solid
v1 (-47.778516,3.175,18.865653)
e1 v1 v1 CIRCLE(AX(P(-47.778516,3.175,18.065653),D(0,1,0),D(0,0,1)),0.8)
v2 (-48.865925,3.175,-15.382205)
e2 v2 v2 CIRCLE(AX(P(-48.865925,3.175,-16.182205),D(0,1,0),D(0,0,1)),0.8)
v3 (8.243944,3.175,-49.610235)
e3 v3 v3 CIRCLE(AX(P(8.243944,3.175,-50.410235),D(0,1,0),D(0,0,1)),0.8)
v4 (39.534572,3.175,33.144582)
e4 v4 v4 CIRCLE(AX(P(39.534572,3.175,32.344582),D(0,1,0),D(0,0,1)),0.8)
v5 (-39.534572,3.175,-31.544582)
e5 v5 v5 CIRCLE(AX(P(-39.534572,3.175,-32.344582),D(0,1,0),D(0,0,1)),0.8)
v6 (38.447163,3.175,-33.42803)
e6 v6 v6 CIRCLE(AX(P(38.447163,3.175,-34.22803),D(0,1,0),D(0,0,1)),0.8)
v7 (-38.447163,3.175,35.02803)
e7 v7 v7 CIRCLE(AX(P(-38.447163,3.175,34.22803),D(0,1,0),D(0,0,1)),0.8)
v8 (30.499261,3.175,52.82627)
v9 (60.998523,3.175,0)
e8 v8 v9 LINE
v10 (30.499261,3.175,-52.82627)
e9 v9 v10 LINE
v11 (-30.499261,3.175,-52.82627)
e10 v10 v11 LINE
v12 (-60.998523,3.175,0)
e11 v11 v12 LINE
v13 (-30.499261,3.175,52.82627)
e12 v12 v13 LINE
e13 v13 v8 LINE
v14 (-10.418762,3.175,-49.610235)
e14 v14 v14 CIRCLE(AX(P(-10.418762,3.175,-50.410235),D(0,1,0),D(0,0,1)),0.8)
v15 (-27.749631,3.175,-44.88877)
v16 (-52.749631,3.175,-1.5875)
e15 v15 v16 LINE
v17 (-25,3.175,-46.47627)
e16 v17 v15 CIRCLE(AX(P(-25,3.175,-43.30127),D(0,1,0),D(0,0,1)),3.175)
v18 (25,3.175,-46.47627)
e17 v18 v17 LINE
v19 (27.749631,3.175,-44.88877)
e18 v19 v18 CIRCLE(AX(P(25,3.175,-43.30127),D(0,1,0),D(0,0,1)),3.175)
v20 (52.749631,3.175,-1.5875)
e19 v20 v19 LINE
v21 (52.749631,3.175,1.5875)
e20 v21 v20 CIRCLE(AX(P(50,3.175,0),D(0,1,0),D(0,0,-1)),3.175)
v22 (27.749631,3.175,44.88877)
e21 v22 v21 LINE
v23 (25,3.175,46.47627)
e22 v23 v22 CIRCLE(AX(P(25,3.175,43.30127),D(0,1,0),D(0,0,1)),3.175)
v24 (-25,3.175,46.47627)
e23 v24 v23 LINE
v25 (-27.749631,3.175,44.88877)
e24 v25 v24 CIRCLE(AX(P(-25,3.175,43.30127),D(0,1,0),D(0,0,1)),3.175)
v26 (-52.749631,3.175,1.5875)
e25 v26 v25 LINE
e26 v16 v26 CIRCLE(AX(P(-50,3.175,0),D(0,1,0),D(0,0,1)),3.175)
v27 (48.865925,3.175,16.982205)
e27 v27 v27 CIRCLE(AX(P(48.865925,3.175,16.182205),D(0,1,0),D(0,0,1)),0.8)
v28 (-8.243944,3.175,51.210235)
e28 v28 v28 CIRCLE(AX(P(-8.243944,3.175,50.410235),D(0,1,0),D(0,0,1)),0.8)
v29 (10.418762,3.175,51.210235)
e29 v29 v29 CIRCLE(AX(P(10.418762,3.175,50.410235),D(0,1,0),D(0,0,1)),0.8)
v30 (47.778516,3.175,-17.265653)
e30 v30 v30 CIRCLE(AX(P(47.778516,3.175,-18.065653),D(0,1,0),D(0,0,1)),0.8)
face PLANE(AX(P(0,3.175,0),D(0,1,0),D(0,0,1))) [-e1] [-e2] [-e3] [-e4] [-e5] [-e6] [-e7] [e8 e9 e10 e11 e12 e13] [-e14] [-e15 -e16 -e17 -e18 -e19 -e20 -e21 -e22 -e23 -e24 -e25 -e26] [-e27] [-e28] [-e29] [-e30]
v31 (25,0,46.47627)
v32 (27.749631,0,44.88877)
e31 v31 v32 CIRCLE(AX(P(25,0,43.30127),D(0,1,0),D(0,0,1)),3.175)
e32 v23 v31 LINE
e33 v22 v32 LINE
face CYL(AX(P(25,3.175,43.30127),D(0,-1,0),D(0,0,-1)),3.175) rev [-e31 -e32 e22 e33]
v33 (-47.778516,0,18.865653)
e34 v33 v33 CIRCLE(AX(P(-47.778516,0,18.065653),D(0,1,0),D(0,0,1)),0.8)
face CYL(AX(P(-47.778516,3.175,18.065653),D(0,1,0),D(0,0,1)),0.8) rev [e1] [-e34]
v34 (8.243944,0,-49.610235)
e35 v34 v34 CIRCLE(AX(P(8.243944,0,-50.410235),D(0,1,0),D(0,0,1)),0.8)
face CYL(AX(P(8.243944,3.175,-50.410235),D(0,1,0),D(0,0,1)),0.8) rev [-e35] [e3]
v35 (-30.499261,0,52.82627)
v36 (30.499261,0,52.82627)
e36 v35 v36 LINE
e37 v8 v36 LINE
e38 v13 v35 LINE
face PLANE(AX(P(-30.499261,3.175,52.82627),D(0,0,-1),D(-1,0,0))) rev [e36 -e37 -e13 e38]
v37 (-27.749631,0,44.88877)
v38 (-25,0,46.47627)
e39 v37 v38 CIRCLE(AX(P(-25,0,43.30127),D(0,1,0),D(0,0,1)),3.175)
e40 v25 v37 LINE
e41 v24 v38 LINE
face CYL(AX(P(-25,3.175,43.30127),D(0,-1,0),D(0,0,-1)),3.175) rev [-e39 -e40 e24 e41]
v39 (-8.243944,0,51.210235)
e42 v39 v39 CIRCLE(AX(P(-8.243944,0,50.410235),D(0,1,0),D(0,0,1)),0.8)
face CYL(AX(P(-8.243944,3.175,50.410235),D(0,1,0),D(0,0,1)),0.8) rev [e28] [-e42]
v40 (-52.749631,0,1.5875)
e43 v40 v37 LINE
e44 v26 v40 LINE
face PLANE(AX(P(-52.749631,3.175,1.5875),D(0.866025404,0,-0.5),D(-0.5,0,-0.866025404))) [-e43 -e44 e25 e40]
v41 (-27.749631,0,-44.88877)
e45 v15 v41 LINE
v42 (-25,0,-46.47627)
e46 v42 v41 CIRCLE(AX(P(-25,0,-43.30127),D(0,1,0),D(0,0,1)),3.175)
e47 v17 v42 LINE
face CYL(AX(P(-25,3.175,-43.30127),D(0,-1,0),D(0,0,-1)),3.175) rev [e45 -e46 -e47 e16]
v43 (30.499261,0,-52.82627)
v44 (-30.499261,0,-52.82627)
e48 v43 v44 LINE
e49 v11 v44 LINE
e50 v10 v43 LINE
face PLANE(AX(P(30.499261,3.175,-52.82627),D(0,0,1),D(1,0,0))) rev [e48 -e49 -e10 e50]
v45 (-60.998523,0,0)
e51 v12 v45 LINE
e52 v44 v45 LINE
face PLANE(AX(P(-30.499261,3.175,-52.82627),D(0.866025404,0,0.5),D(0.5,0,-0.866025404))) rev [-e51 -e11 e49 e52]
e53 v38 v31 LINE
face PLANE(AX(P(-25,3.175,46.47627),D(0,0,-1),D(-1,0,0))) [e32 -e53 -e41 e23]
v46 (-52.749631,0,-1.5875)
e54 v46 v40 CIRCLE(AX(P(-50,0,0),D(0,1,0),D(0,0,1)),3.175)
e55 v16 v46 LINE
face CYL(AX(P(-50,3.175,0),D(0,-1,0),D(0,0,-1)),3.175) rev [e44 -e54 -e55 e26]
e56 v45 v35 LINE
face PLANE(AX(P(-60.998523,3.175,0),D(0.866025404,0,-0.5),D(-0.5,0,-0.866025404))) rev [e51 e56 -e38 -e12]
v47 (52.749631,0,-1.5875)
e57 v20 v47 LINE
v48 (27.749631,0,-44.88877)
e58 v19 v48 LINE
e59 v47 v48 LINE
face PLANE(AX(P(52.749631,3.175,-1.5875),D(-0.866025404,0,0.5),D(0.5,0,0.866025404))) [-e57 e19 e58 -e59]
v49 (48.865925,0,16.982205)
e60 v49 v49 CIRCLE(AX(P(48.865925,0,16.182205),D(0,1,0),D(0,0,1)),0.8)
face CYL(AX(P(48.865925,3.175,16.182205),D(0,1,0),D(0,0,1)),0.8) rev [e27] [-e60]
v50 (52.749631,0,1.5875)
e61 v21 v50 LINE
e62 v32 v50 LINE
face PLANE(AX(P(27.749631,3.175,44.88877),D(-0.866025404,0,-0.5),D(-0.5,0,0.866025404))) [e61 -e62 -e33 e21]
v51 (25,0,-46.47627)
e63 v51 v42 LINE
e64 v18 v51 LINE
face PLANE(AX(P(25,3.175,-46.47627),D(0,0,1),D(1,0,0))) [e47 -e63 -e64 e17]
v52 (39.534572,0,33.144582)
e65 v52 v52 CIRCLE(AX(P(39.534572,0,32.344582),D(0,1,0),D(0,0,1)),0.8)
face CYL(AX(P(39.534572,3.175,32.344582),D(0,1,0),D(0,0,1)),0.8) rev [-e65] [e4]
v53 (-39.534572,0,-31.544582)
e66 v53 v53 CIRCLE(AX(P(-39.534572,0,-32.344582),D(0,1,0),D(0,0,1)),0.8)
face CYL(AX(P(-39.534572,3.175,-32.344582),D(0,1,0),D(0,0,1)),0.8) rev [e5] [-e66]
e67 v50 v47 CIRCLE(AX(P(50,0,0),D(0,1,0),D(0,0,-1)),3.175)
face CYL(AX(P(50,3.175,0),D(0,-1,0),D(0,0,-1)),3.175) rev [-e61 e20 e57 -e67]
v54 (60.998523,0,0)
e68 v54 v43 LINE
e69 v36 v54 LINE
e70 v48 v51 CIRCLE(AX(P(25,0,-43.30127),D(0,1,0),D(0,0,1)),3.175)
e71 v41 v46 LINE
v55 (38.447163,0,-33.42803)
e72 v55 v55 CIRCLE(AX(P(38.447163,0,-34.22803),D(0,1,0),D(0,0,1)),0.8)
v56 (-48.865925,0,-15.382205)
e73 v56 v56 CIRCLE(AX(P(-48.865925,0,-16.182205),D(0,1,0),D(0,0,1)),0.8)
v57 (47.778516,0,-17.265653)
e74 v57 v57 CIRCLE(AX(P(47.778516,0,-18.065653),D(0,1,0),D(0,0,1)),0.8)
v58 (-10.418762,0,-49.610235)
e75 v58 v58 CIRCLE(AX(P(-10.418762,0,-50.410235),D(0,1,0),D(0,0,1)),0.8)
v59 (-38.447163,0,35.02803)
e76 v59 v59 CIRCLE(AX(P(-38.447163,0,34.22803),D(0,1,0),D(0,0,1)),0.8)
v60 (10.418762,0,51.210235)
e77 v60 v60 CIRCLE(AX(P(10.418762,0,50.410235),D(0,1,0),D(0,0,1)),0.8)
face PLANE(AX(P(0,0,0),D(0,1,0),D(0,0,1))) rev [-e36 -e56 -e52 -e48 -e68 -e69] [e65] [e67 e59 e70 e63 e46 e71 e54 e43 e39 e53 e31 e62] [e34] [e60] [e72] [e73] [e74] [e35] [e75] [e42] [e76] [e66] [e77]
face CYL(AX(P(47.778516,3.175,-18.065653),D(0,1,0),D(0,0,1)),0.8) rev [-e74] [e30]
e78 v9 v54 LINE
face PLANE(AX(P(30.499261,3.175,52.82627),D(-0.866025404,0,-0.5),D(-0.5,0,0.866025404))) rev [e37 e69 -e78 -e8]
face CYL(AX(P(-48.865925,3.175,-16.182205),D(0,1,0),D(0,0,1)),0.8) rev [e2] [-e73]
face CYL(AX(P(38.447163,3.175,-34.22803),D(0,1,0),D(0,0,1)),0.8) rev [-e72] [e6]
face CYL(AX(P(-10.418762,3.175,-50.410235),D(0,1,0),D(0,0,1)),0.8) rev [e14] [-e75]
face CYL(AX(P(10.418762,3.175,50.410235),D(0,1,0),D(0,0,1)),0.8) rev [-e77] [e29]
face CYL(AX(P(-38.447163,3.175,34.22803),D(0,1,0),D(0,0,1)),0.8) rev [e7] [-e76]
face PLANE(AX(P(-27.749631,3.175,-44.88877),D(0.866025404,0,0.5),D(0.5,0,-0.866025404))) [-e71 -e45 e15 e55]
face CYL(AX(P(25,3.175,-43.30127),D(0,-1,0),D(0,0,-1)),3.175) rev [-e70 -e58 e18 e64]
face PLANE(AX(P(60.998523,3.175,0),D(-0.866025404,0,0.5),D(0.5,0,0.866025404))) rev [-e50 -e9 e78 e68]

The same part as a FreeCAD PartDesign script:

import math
import FreeCAD as App
import Part
import Sketcher
Q = App.Units.Quantity

doc = App.newDocument("Part")
body = doc.addObject("PartDesign::Body", "Body")

sketch1 = body.newObject("Sketcher::SketchObject", "Sketch")
sketch1.AttachmentSupport = (doc.getObject("XZ_Plane"), [""])
sketch1.MapMode = "FlatFace"
sketch1.addGeometry([
    Part.LineSegment(App.Vector(60.998523, 0, 0), App.Vector(30.499261, -52.82627, 0)),
    Part.LineSegment(App.Vector(30.499261, -52.82627, 0), App.Vector(-30.499261, -52.82627, 0)),
    Part.LineSegment(App.Vector(-30.499261, -52.82627, 0), App.Vector(-60.998523, 0, 0)),
    Part.LineSegment(App.Vector(-60.998523, 0, 0), App.Vector(-30.499261, 52.82627, 0)),
    Part.LineSegment(App.Vector(-30.499261, 52.82627, 0), App.Vector(30.499261, 52.82627, 0)),
    Part.LineSegment(App.Vector(30.499261, 52.82627, 0), App.Vector(60.998523, 0, 0)),
    Part.LineSegment(App.Vector(27.749631, -44.88877, 0), App.Vector(52.749631, -1.5875, 0)),
    Part.ArcOfCircle(Part.Circle(App.Vector(50, 0, 0), App.Vector(0, 0, 1), 3.175), math.radians(-30), math.radians(30)),
    Part.LineSegment(App.Vector(52.749631, 1.5875, 0), App.Vector(27.749631, 44.88877, 0)),
    Part.ArcOfCircle(Part.Circle(App.Vector(25, 43.30127, 0), App.Vector(0, 0, 1), 3.175), math.radians(30), math.radians(90)),
    Part.LineSegment(App.Vector(25, 46.47627, 0), App.Vector(-25, 46.47627, 0)),
    Part.ArcOfCircle(Part.Circle(App.Vector(-25, 43.30127, 0), App.Vector(0, 0, 1), 3.175), math.radians(90), math.radians(150)),
    Part.LineSegment(App.Vector(-27.749631, 44.88877, 0), App.Vector(-52.749631, 1.5875, 0)),
    Part.ArcOfCircle(Part.Circle(App.Vector(-50, 0, 0), App.Vector(0, 0, 1), 3.175), math.radians(150), math.radians(210)),
    Part.LineSegment(App.Vector(-52.749631, -1.5875, 0), App.Vector(-27.749631, -44.88877, 0)),
    Part.ArcOfCircle(Part.Circle(App.Vector(-25, -43.30127, 0), App.Vector(0, 0, 1), 3.175), math.radians(-150), math.radians(-90)),
    Part.LineSegment(App.Vector(-25, -46.47627, 0), App.Vector(25, -46.47627, 0)),
    Part.ArcOfCircle(Part.Circle(App.Vector(25, -43.30127, 0), App.Vector(0, 0, 1), 3.175), math.radians(-90), math.radians(-30)),
], False)
sketch1.addConstraint([
    Sketcher.Constraint("Coincident", 0, 2, 1, 1),
    Sketcher.Constraint("Coincident", 1, 2, 2, 1),
    Sketcher.Constraint("Coincident", 2, 2, 3, 1),
    Sketcher.Constraint("Coincident", 3, 2, 4, 1),
    Sketcher.Constraint("Coincident", 4, 2, 5, 1),
    Sketcher.Constraint("Coincident", 5, 2, 0, 1),
    Sketcher.Constraint("Tangent", 6, 2, 7, 1),
    Sketcher.Constraint("Tangent", 7, 2, 8, 1),
    Sketcher.Constraint("Tangent", 8, 2, 9, 1),
    Sketcher.Constraint("Tangent", 9, 2, 10, 1),
    Sketcher.Constraint("Tangent", 10, 2, 11, 1),
    Sketcher.Constraint("Tangent", 11, 2, 12, 1),
    Sketcher.Constraint("Tangent", 12, 2, 13, 1),
    Sketcher.Constraint("Tangent", 13, 2, 14, 1),
    Sketcher.Constraint("Tangent", 14, 2, 15, 1),
    Sketcher.Constraint("Tangent", 15, 2, 16, 1),
    Sketcher.Constraint("Tangent", 16, 2, 17, 1),
    Sketcher.Constraint("Tangent", 17, 2, 6, 1),
    Sketcher.Constraint("Horizontal", 1),
    Sketcher.Constraint("Horizontal", 4),
    Sketcher.Constraint("Horizontal", 10),
    Sketcher.Constraint("Horizontal", 16),
    Sketcher.Constraint("Equal", 7, 9),
    Sketcher.Constraint("Equal", 9, 11),
    Sketcher.Constraint("Equal", 11, 13),
    Sketcher.Constraint("Equal", 13, 15),
    Sketcher.Constraint("Equal", 15, 17),
    Sketcher.Constraint("Symmetric", 7, 3, 13, 3, -1, 1),
    Sketcher.Constraint("Symmetric", 9, 3, 15, 3, -1, 1),
    Sketcher.Constraint("Symmetric", 0, 2, 3, 2, -1, 1),
    Sketcher.Constraint("Symmetric", 2, 2, 5, 2, -1, 1),
    Sketcher.Constraint("Symmetric", 8, 2, 11, 2, -2),
    Sketcher.Constraint("PointOnObject", 2, 2, -1),
    Sketcher.Constraint("Parallel", 2, 5),
    Sketcher.Constraint("Parallel", 3, 6),
    Sketcher.Constraint("Parallel", 5, 8),
    Sketcher.Constraint("Parallel", 6, 12),
    Sketcher.Constraint("Angle", 0, Q("-120 deg")),
    Sketcher.Constraint("Radius", 7, Q("0.125 in")),
    Sketcher.Constraint("DistanceY", 9, 2, 4, 2, Q("0.25 in")),
    Sketcher.Constraint("DistanceX", 10, 2, 10, 1, 50.0),
    Sketcher.Constraint("Distance", 6, 50.0),
    Sketcher.Constraint("DistanceX", 1, 2, 1, 1, 60.998523),
])
pad1 = body.newObject("PartDesign::Pad", "Pad")
pad1.Profile = sketch1
pad1.Length = Q("0.125 in")
pad1.Reversed = True

sketch2 = body.newObject("Sketcher::SketchObject", "Sketch001")
sketch2.AttachmentSupport = (doc.getObject("YZ_Plane"), [""])
sketch2.MapMode = "FlatFace"
sketch2.AttachmentOffset = App.Placement(App.Vector(0, 0, 8.243944), App.Rotation())
sketch2.addGeometry([
    Part.LineSegment(App.Vector(-3.401688, -50.410235, 0), App.Vector(3.175, -50.410235, 0)),
    Part.LineSegment(App.Vector(3.175, -50.410235, 0), App.Vector(3.175, -49.610235, 0)),
    Part.LineSegment(App.Vector(3.175, -49.610235, 0), App.Vector(-2.921, -49.610235, 0)),
    Part.LineSegment(App.Vector(-2.921, -49.610235, 0), App.Vector(-3.401688, -50.410235, 0)),
], False)
sketch2.addGeometry(Part.LineSegment(App.Vector(3.175, -50.410235, 0), App.Vector(-3.401688, -50.410235, 0)), True)
sketch2.addConstraint([
    Sketcher.Constraint("Coincident", 0, 2, 1, 1),
    Sketcher.Constraint("Coincident", 1, 2, 2, 1),
    Sketcher.Constraint("Coincident", 2, 2, 3, 1),
    Sketcher.Constraint("Coincident", 3, 2, 0, 1),
    Sketcher.Constraint("Horizontal", 0),
    Sketcher.Constraint("Vertical", 1),
    Sketcher.Constraint("Horizontal", 2),
    Sketcher.Constraint("Horizontal", 4),
    Sketcher.Constraint("Coincident", 4, 1, 0, 2),
    Sketcher.Constraint("Equal", 0, 4),
    Sketcher.Constraint("Angle", 3, Q("-121 deg")),
    Sketcher.Constraint("DistanceX", 2, 2, 2, 1, Q("0.24 in")),
    Sketcher.Constraint("DistanceX", -1, 1, 0, 2, Q("0.125 in")),
    Sketcher.Constraint("DistanceY", 1, 1, 1, 2, 0.8),
    Sketcher.Constraint("DistanceY", 0, 2, -1, 1, 50.410235),
])
groove = body.newObject("PartDesign::Groove", "Groove")
groove.Profile = sketch2
groove.ReferenceAxis = (sketch2, ["Axis0"])
groove.Angle = 360
doc.recompute()

linearpattern = body.newObject("PartDesign::LinearPattern", "LinearPattern")
linearpattern.Originals = [groove]
linearpattern.Direction = (doc.getObject("X_Axis"), [""])
linearpattern.Mode = "offset"
linearpattern.Offset = 18.662705
linearpattern.Occurrences = 2
linearpattern.Reversed = True
body.Tip = linearpattern
doc.recompute()

polarpattern = body.newObject("PartDesign::PolarPattern", "PolarPattern")
polarpattern.Originals = [groove]
polarpattern.Axis = (doc.getObject("Y_Axis"), [""])
polarpattern.Angle = 360
polarpattern.Occurrences = 6
body.Tip = polarpattern

sketch3 = body.newObject("Sketcher::SketchObject", "Sketch002")
sketch3.Placement = App.Placement(App.Vector(-48.865925, 3.175, -16.182205), App.Rotation(App.Vector(0.866025404, 0, 0.5), App.Vector(0, -1, 0), App.Vector(0.5, 0, -0.866025404), "ZXY"))
sketch3.addGeometry([
    Part.LineSegment(App.Vector(0, 6.576689, 0), App.Vector(0, 0, 0)),
    Part.LineSegment(App.Vector(0, 0, 0), App.Vector(0.8, 0, 0)),
    Part.LineSegment(App.Vector(0.8, 0, 0), App.Vector(0.8, 6.096, 0)),
    Part.LineSegment(App.Vector(0.8, 6.096, 0), App.Vector(0, 6.576689, 0)),
], False)
sketch3.addConstraint([
    Sketcher.Constraint("Coincident", 0, 2, 1, 1),
    Sketcher.Constraint("Coincident", 1, 2, 2, 1),
    Sketcher.Constraint("Coincident", 2, 2, 3, 1),
    Sketcher.Constraint("Coincident", 3, 2, 0, 1),
    Sketcher.Constraint("Vertical", 0),
    Sketcher.Constraint("Horizontal", 1),
    Sketcher.Constraint("Vertical", 2),
    Sketcher.Constraint("Coincident", 0, 2, -1, 1),
    Sketcher.Constraint("Angle", 3, Q("149 deg")),
    Sketcher.Constraint("DistanceY", 2, 1, 2, 2, Q("0.24 in")),
    Sketcher.Constraint("DistanceX", 1, 1, 1, 2, 0.8),
])
groove2 = body.newObject("PartDesign::Groove", "Groove001")
groove2.Profile = sketch3
groove2.ReferenceAxis = (sketch3, ["V_Axis"])
groove2.Angle = 360

sketch4 = body.newObject("Sketcher::SketchObject", "Sketch003")
sketch4.Placement = App.Placement(App.Vector(-38.447163, 3.175, 34.22803), App.Rotation(App.Vector(0.866025404, 0, -0.5), App.Vector(0, -1, 0), App.Vector(-0.5, 0, -0.866025404), "ZXY"))
sketch4.addGeometry([
    Part.LineSegment(App.Vector(0, 6.576689, 0), App.Vector(0, 0, 0)),
    Part.LineSegment(App.Vector(0, 0, 0), App.Vector(0.8, 0, 0)),
    Part.LineSegment(App.Vector(0.8, 0, 0), App.Vector(0.8, 6.096, 0)),
    Part.LineSegment(App.Vector(0.8, 6.096, 0), App.Vector(0, 6.576689, 0)),
], False)
sketch4.addConstraint([
    Sketcher.Constraint("Coincident", 0, 2, 1, 1),
    Sketcher.Constraint("Coincident", 1, 2, 2, 1),
    Sketcher.Constraint("Coincident", 2, 2, 3, 1),
    Sketcher.Constraint("Coincident", 3, 2, 0, 1),
    Sketcher.Constraint("Vertical", 0),
    Sketcher.Constraint("Horizontal", 1),
    Sketcher.Constraint("Vertical", 2),
    Sketcher.Constraint("Coincident", 0, 2, -1, 1),
    Sketcher.Constraint("Angle", 3, Q("149 deg")),
    Sketcher.Constraint("DistanceY", 2, 1, 2, 2, Q("0.24 in")),
    Sketcher.Constraint("DistanceX", 1, 1, 1, 2, 0.8),
])
groove3 = body.newObject("PartDesign::Groove", "Groove002")
groove3.Profile = sketch4
groove3.ReferenceAxis = (sketch4, ["V_Axis"])
groove3.Angle = 360

sketch5 = body.newObject("Sketcher::SketchObject", "Sketch004")
sketch5.AttachmentSupport = (doc.getObject("YZ_Plane"), [""])
sketch5.MapMode = "FlatFace"
sketch5.AttachmentOffset = App.Placement(App.Vector(0, 0, 10.418762), App.Rotation())
sketch5.addGeometry([
    Part.LineSegment(App.Vector(-3.401688, 50.410235, 0), App.Vector(3.175, 50.410235, 0)),
    Part.LineSegment(App.Vector(3.175, 50.410235, 0), App.Vector(3.175, 49.610235, 0)),
    Part.LineSegment(App.Vector(3.175, 49.610235, 0), App.Vector(-2.921, 49.610235, 0)),
    Part.LineSegment(App.Vector(-2.921, 49.610235, 0), App.Vector(-3.401688, 50.410235, 0)),
], False)
sketch5.addGeometry(Part.LineSegment(App.Vector(3.175, 50.410235, 0), App.Vector(-3.401688, 50.410235, 0)), True)
sketch5.addConstraint([
    Sketcher.Constraint("Coincident", 0, 2, 1, 1),
    Sketcher.Constraint("Coincident", 1, 2, 2, 1),
    Sketcher.Constraint("Coincident", 2, 2, 3, 1),
    Sketcher.Constraint("Coincident", 3, 2, 0, 1),
    Sketcher.Constraint("Horizontal", 0),
    Sketcher.Constraint("Vertical", 1),
    Sketcher.Constraint("Horizontal", 2),
    Sketcher.Constraint("Horizontal", 4),
    Sketcher.Constraint("Coincident", 4, 1, 0, 2),
    Sketcher.Constraint("Equal", 0, 4),
    Sketcher.Constraint("Angle", 3, Q("121 deg")),
    Sketcher.Constraint("DistanceX", 2, 2, 2, 1, Q("0.24 in")),
    Sketcher.Constraint("DistanceX", -1, 1, 0, 2, Q("0.125 in")),
    Sketcher.Constraint("DistanceY", 1, 2, 1, 1, 0.8),
    Sketcher.Constraint("DistanceY", -1, 1, 0, 2, 50.410235),
])
groove4 = body.newObject("PartDesign::Groove", "Groove003")
groove4.Profile = sketch5
groove4.ReferenceAxis = (sketch5, ["Axis0"])
groove4.Angle = 360

sketch6 = body.newObject("Sketcher::SketchObject", "Sketch005")
sketch6.Placement = App.Placement(App.Vector(48.865925, 3.175, 16.182205), App.Rotation(App.Vector(-0.866025404, 0, -0.5), App.Vector(0, -1, 0), App.Vector(-0.5, 0, 0.866025404), "ZXY"))
sketch6.addGeometry([
    Part.LineSegment(App.Vector(0, 6.576689, 0), App.Vector(0, 0, 0)),
    Part.LineSegment(App.Vector(0, 0, 0), App.Vector(0.8, 0, 0)),
    Part.LineSegment(App.Vector(0.8, 0, 0), App.Vector(0.8, 6.096, 0)),
    Part.LineSegment(App.Vector(0.8, 6.096, 0), App.Vector(0, 6.576689, 0)),
], False)
sketch6.addConstraint([
    Sketcher.Constraint("Coincident", 0, 2, 1, 1),
    Sketcher.Constraint("Coincident", 1, 2, 2, 1),
    Sketcher.Constraint("Coincident", 2, 2, 3, 1),
    Sketcher.Constraint("Coincident", 3, 2, 0, 1),
    Sketcher.Constraint("Vertical", 0),
    Sketcher.Constraint("Horizontal", 1),
    Sketcher.Constraint("Vertical", 2),
    Sketcher.Constraint("Coincident", 0, 2, -1, 1),
    Sketcher.Constraint("Angle", 3, Q("149 deg")),
    Sketcher.Constraint("DistanceY", 2, 1, 2, 2, Q("0.24 in")),
    Sketcher.Constraint("DistanceX", 1, 1, 1, 2, 0.8),
])
groove5 = body.newObject("PartDesign::Groove", "Groove004")
groove5.Profile = sketch6
groove5.ReferenceAxis = (sketch6, ["V_Axis"])
groove5.Angle = 360

sketch7 = body.newObject("Sketcher::SketchObject", "Sketch006")
sketch7.Placement = App.Placement(App.Vector(38.447163, 3.175, -34.22803), App.Rotation(App.Vector(-0.866025404, 0, 0.5), App.Vector(0, -1, 0), App.Vector(0.5, 0, 0.866025404), "ZXY"))
sketch7.addGeometry([
    Part.LineSegment(App.Vector(0, 6.576689, 0), App.Vector(0, 0, 0)),
    Part.LineSegment(App.Vector(0, 0, 0), App.Vector(0.8, 0, 0)),
    Part.LineSegment(App.Vector(0.8, 0, 0), App.Vector(0.8, 6.096, 0)),
    Part.LineSegment(App.Vector(0.8, 6.096, 0), App.Vector(0, 6.576689, 0)),
], False)
sketch7.addConstraint([
    Sketcher.Constraint("Coincident", 0, 2, 1, 1),
    Sketcher.Constraint("Coincident", 1, 2, 2, 1),
    Sketcher.Constraint("Coincident", 2, 2, 3, 1),
    Sketcher.Constraint("Coincident", 3, 2, 0, 1),
    Sketcher.Constraint("Vertical", 0),
    Sketcher.Constraint("Horizontal", 1),
    Sketcher.Constraint("Vertical", 2),
    Sketcher.Constraint("Coincident", 0, 2, -1, 1),
    Sketcher.Constraint("Angle", 3, Q("149 deg")),
    Sketcher.Constraint("DistanceY", 2, 1, 2, 2, Q("0.24 in")),
    Sketcher.Constraint("DistanceX", 1, 1, 1, 2, 0.8),
])
groove6 = body.newObject("PartDesign::Groove", "Groove005")
groove6.Profile = sketch7
groove6.ReferenceAxis = (sketch7, ["V_Axis"])
groove6.Angle = 360

doc.recompute()
